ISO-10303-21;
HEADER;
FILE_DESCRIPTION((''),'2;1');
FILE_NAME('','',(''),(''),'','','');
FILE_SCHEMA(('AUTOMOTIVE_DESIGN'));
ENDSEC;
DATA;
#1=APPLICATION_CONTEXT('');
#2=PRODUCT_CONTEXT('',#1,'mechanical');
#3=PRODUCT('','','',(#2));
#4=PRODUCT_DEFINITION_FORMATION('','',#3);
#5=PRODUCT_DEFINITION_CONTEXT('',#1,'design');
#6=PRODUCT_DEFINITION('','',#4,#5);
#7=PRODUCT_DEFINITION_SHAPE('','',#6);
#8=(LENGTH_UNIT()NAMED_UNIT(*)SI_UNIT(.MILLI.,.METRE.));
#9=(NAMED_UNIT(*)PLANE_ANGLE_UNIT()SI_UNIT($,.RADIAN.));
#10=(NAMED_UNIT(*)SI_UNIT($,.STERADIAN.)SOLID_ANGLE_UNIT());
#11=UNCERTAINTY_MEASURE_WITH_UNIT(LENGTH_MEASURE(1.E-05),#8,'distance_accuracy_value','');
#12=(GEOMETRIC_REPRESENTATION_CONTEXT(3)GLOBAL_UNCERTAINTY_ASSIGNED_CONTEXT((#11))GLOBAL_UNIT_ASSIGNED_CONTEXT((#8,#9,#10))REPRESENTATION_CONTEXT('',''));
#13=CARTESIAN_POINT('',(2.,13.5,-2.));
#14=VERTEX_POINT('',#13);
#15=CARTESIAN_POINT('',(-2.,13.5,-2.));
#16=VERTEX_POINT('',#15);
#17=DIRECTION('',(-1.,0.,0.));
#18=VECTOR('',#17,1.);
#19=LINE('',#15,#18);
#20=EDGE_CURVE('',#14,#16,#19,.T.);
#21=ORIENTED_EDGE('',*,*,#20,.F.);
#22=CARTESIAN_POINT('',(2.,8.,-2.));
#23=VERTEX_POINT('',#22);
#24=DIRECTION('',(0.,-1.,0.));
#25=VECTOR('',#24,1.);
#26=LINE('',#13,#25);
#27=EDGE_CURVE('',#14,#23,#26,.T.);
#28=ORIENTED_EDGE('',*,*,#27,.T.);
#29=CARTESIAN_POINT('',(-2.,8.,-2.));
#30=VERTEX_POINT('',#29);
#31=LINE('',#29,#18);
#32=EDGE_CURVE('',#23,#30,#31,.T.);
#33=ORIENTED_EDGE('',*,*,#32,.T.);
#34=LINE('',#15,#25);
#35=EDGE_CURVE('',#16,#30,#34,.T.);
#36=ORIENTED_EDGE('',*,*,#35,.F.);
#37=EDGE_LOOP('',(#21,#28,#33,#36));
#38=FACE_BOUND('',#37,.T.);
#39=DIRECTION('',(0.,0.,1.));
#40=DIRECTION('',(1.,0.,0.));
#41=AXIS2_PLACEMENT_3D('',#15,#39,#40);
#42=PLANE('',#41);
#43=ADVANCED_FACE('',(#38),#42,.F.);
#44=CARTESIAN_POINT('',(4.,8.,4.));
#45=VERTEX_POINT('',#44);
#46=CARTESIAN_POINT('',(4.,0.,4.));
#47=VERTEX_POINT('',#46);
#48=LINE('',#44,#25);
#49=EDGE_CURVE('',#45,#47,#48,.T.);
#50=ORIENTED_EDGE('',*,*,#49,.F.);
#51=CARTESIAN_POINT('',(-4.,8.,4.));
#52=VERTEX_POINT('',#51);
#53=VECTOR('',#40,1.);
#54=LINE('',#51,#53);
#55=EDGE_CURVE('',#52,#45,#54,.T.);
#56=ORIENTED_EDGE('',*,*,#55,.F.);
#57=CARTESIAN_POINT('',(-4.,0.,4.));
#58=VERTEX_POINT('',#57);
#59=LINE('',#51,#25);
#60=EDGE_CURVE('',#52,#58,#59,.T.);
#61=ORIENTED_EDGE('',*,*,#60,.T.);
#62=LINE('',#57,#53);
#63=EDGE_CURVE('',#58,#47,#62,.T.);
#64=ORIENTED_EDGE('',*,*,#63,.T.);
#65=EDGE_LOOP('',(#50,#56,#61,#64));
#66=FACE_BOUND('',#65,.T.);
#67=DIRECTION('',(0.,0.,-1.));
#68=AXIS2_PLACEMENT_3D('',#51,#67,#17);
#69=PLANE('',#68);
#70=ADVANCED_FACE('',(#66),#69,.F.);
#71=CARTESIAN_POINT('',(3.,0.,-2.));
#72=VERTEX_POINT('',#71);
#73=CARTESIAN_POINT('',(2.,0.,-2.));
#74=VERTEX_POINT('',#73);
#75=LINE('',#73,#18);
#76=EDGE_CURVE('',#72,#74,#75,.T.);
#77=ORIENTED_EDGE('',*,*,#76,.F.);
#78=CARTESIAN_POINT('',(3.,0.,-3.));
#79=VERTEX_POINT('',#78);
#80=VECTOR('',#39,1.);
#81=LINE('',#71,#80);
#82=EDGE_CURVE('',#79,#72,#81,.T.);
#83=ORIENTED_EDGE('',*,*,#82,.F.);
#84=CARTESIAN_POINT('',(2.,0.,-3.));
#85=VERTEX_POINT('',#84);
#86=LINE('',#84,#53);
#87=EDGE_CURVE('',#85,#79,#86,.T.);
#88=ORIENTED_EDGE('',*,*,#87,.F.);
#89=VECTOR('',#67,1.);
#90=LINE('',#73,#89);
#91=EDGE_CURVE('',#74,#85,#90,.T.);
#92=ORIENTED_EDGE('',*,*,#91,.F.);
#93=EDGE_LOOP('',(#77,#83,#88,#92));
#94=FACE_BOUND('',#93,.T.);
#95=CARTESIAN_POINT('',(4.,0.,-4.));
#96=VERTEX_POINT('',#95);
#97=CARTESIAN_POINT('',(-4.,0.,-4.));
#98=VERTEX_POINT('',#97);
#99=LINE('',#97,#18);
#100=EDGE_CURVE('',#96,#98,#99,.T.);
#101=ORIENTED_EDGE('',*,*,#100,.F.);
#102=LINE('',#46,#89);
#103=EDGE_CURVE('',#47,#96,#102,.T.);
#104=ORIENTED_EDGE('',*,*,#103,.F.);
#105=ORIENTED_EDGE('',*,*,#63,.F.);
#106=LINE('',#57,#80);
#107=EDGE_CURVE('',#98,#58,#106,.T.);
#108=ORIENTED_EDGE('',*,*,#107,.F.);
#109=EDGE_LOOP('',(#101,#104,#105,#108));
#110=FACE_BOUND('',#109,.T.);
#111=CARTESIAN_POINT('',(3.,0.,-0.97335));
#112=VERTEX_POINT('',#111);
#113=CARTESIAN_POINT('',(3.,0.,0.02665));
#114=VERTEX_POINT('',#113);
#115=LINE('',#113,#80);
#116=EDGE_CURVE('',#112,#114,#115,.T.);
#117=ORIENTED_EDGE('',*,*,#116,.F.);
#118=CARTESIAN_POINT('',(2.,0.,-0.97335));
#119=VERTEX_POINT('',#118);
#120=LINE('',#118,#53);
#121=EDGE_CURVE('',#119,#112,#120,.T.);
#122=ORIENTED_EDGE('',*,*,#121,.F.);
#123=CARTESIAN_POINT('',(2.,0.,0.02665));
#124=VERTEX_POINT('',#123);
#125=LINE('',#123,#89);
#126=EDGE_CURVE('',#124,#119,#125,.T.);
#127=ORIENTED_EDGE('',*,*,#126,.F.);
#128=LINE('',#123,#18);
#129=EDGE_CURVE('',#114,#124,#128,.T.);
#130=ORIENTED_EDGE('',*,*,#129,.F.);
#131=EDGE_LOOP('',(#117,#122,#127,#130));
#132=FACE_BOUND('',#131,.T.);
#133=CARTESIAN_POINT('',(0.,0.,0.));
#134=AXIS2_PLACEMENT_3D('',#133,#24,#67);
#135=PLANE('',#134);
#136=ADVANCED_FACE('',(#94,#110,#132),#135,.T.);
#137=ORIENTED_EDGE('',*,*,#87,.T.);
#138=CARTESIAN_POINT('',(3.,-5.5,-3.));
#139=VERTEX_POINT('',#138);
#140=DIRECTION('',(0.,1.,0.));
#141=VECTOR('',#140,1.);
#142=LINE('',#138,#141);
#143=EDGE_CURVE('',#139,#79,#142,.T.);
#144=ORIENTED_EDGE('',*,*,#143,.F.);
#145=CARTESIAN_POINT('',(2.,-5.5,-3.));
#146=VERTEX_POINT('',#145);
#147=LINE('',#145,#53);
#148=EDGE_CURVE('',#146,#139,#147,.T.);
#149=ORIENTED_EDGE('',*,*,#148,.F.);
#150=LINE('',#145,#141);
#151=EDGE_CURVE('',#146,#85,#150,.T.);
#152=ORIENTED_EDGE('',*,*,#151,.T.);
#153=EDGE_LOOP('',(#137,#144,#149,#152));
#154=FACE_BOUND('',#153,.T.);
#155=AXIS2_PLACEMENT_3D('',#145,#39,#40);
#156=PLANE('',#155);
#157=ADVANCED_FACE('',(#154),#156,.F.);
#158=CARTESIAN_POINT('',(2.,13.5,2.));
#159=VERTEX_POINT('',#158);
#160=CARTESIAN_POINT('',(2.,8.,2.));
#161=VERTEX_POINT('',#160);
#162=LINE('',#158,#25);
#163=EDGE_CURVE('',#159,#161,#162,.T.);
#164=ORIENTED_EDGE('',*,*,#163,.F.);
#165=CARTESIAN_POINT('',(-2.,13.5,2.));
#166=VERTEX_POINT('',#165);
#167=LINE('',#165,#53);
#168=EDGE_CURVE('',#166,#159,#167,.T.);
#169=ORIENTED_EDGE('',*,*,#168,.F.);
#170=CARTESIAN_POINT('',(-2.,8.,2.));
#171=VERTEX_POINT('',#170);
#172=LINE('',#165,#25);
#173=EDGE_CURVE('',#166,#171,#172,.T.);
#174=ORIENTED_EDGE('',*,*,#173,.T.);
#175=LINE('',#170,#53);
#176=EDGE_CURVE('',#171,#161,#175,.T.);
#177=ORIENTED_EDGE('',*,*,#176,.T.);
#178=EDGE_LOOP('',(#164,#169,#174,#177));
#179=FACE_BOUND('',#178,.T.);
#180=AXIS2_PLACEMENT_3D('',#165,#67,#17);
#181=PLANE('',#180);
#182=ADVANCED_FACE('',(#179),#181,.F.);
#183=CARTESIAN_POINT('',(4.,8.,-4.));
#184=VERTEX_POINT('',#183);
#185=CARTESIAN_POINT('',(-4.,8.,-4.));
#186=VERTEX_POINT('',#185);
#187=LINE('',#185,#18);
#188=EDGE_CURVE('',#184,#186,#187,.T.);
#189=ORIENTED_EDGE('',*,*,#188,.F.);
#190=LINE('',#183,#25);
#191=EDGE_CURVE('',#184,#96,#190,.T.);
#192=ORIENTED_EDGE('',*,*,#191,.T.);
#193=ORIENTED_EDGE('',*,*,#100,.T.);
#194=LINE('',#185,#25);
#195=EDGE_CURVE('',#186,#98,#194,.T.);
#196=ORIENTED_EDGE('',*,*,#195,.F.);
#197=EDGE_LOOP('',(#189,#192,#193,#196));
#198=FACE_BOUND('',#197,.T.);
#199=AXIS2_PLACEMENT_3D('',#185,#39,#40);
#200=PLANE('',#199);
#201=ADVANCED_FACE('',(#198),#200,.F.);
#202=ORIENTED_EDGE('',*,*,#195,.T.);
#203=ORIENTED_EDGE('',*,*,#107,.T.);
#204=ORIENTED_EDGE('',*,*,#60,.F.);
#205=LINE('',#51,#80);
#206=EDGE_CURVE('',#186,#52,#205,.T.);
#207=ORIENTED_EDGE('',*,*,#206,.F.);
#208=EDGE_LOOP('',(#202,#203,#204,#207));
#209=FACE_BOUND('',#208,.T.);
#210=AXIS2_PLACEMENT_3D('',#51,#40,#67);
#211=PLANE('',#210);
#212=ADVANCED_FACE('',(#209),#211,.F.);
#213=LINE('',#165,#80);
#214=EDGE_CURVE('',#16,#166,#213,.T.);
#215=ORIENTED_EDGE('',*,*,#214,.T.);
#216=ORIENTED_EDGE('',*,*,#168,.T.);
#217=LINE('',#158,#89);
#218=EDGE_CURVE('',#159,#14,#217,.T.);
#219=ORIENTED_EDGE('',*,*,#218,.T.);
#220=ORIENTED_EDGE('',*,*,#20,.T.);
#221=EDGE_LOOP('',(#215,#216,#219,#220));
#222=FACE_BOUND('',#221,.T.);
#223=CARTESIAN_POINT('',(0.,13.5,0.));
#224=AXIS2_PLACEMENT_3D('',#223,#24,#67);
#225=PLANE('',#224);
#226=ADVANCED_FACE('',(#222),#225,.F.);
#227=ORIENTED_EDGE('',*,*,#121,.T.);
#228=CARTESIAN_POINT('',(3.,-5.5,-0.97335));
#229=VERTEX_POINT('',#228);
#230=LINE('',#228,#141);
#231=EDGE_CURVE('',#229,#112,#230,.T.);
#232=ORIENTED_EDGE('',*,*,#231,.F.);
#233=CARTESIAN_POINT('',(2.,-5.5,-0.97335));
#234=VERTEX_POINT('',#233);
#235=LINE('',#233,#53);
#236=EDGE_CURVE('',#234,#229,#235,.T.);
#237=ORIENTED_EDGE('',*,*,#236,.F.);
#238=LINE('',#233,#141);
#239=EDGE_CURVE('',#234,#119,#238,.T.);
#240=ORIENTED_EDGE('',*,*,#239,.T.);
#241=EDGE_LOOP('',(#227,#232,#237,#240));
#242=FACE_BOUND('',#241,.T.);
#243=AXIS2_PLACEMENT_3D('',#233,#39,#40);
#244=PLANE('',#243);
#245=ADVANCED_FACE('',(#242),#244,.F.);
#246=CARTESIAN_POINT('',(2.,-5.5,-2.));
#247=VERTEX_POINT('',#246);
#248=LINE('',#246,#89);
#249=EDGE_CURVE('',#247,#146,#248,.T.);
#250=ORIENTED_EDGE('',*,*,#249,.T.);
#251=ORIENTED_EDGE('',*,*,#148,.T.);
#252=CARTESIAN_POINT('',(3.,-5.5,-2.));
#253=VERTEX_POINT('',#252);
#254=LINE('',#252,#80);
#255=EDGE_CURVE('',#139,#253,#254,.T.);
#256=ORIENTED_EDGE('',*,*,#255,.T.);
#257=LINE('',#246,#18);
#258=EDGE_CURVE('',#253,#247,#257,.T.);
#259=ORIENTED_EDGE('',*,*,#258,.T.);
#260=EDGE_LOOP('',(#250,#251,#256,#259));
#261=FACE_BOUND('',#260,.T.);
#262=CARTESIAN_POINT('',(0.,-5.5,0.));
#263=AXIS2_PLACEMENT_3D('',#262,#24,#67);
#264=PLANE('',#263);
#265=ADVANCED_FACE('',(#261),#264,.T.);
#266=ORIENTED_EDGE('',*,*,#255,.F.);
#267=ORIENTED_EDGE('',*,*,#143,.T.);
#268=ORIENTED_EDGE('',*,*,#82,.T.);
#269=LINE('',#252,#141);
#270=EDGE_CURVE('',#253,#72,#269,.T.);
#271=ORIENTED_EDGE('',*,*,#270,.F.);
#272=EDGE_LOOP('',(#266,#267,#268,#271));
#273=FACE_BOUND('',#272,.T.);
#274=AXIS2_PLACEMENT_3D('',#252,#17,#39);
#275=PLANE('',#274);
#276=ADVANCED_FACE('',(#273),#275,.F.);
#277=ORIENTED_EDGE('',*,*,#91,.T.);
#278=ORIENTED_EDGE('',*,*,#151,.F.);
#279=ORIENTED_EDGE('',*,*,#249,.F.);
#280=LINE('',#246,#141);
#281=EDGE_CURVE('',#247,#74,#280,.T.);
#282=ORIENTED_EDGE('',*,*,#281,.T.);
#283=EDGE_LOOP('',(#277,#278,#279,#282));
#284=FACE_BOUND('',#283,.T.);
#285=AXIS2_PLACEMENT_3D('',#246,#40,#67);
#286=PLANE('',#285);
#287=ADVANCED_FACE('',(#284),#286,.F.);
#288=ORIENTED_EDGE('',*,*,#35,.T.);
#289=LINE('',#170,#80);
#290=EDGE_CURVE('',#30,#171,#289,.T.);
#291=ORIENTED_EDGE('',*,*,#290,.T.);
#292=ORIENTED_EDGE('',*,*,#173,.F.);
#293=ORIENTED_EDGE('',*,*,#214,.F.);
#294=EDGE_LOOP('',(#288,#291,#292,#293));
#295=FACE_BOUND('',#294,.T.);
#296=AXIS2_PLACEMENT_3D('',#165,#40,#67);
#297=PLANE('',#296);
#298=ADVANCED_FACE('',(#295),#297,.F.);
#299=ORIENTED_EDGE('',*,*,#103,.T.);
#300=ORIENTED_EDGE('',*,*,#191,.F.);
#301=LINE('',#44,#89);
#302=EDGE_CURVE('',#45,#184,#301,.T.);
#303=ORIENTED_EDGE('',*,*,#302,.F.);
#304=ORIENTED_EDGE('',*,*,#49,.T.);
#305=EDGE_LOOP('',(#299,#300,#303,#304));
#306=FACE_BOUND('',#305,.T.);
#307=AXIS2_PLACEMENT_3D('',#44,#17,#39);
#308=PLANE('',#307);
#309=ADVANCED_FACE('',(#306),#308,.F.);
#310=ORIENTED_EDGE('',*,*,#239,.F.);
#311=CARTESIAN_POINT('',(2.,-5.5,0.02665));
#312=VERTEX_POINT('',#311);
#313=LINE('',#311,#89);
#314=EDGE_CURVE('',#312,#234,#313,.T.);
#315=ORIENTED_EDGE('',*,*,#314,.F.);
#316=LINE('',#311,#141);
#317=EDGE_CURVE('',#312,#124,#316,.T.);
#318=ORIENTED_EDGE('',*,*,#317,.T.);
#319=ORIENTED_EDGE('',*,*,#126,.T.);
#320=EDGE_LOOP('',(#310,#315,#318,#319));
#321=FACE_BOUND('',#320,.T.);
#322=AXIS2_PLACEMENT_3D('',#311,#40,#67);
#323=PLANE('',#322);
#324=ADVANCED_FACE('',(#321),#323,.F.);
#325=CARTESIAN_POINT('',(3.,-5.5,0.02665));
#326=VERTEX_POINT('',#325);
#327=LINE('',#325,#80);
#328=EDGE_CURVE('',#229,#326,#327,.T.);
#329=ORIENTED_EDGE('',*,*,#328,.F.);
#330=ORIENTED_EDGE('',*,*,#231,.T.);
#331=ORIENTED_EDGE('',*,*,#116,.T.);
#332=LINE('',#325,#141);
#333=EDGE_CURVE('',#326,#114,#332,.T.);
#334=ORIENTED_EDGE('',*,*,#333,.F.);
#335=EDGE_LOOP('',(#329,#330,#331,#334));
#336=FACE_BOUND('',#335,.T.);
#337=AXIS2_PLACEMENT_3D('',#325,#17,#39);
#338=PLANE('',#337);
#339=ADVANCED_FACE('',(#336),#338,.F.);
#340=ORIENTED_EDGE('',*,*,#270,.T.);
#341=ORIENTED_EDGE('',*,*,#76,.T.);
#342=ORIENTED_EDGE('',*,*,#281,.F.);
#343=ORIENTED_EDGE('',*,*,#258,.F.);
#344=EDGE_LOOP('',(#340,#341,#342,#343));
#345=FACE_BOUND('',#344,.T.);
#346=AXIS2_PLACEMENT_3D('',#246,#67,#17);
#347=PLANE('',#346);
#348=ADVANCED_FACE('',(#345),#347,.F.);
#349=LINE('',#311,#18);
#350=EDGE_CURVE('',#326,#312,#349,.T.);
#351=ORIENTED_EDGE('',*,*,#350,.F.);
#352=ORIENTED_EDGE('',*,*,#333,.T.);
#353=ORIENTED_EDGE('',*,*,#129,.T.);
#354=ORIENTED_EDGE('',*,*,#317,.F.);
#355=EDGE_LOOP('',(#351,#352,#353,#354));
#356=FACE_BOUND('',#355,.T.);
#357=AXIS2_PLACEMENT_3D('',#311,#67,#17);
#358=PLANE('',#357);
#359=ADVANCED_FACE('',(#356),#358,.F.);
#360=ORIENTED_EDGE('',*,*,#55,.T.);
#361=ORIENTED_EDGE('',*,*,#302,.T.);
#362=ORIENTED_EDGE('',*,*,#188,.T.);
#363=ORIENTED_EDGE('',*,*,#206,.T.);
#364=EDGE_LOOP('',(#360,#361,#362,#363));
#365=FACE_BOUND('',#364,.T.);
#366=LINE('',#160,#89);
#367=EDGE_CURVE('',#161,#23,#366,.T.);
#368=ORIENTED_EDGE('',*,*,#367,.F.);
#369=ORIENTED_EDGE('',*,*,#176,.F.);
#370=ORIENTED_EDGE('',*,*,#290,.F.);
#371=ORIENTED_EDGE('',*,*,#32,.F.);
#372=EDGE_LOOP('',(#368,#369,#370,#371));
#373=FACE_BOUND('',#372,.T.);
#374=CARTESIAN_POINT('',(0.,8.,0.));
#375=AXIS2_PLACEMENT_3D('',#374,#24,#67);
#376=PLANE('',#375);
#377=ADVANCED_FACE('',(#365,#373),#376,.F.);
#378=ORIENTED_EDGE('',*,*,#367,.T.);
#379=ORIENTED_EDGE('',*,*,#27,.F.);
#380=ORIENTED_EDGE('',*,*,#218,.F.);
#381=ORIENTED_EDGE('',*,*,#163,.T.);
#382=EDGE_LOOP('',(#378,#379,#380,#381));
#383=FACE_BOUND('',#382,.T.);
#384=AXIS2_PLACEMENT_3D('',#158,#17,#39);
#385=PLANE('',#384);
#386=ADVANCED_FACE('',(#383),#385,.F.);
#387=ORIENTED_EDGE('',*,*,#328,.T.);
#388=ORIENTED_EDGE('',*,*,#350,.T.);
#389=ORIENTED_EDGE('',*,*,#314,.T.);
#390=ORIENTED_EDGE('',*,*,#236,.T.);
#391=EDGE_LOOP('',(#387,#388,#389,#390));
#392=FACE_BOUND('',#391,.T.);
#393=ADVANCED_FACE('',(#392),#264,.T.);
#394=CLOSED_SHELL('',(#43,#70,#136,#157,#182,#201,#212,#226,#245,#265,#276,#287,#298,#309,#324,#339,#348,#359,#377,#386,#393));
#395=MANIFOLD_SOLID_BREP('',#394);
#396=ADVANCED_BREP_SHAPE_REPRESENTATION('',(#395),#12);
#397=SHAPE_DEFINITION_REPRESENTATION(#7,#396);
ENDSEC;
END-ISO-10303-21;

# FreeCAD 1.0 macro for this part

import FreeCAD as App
import Part
import Sketcher

V = App.Vector
Q = App.Units.Quantity

doc = App.newDocument("Part")
body = doc.addObject("PartDesign::Body", "Body")

# Sketch on XZ plane
sketch1 = body.newObject("Sketcher::SketchObject", "Sketch")
sketch1.AttachmentSupport = (doc.getObject("XZ_Plane"), [""])
sketch1.MapMode = "FlatFace"
sketch1.addGeometry([
    Part.LineSegment(V(-4, -4, 0), V(-4, 4, 0)),
    Part.LineSegment(V(-4, 4, 0), V(4, 4, 0)),
    Part.LineSegment(V(4, 4, 0), V(4, -4, 0)),
    Part.LineSegment(V(4, -4, 0), V(-4, -4, 0)),
], False)
sketch1.addConstraint([
    Sketcher.Constraint("Coincident", 0, 2, 1, 1),
    Sketcher.Constraint("Coincident", 1, 2, 2, 1),
    Sketcher.Constraint("Coincident", 2, 2, 3, 1),
    Sketcher.Constraint("Coincident", 3, 2, 0, 1),
    Sketcher.Constraint("Vertical", 0),
    Sketcher.Constraint("Horizontal", 1),
    Sketcher.Constraint("Vertical", 2),
    Sketcher.Constraint("Horizontal", 3),
    Sketcher.Constraint("Symmetric", 0, 2, 2, 2, -1, 1),
    Sketcher.Constraint("Equal", 3, 0),
    Sketcher.Constraint("DistanceX", 1, 1, 1, 2, Q("8 mm")),
])
pad1 = body.newObject("PartDesign::Pad", "Pad")
pad1.Profile = sketch1
pad1.Length = 8
pad1.Reversed = True

# Sketch on XZ plane
sketch2 = body.newObject("Sketcher::SketchObject", "Sketch001")
sketch2.AttachmentSupport = (doc.getObject("XZ_Plane"), [""])
sketch2.MapMode = "FlatFace"
sketch2.AttachmentOffset = App.Placement(V(0, 0, -8), App.Rotation())
sketch2.addGeometry([
    Part.LineSegment(V(-2, -2, 0), V(-2, 2, 0)),
    Part.LineSegment(V(-2, 2, 0), V(2, 2, 0)),
    Part.LineSegment(V(2, 2, 0), V(2, -2, 0)),
    Part.LineSegment(V(2, -2, 0), V(-2, -2, 0)),
], False)
sketch2.addConstraint([
    Sketcher.Constraint("Coincident", 0, 2, 1, 1),
    Sketcher.Constraint("Coincident", 1, 2, 2, 1),
    Sketcher.Constraint("Coincident", 2, 2, 3, 1),
    Sketcher.Constraint("Coincident", 3, 2, 0, 1),
    Sketcher.Constraint("Vertical", 0),
    Sketcher.Constraint("Horizontal", 1),
    Sketcher.Constraint("Vertical", 2),
    Sketcher.Constraint("Horizontal", 3),
    Sketcher.Constraint("Symmetric", 0, 2, 2, 2, -1, 1),
    Sketcher.Constraint("Equal", 3, 0),
    Sketcher.Constraint("DistanceX", 1, 1, 1, 2, Q("4 mm")),
])
pad2 = body.newObject("PartDesign::Pad", "Pad001")
pad2.Profile = sketch2
pad2.Length = 5.5
pad2.Reversed = True

# Sketch on XZ plane
sketch3 = body.newObject("Sketcher::SketchObject", "Sketch002")
sketch3.AttachmentSupport = (doc.getObject("XZ_Plane"), [""])
sketch3.MapMode = "FlatFace"
sketch3.addGeometry([
    Part.LineSegment(V(2, -2, 0), V(2, -3, 0)),  # 0
    Part.LineSegment(V(2, -3, 0), V(3, -3, 0)),  # 1
    Part.LineSegment(V(3, -3, 0), V(3, -2, 0)),  # 2
    Part.LineSegment(V(3, -2, 0), V(2, -2, 0)),  # 3
    Part.LineSegment(V(2, 0, 0), V(2, -1, 0)),  # 4
    Part.LineSegment(V(2, -1, 0), V(3, -1, 0)),  # 5
    Part.LineSegment(V(3, -1, 0), V(3, 0, 0)),  # 6
    Part.LineSegment(V(3, 0, 0), V(2, 0, 0)),  # 7
], False)
sketch3.addConstraint([
    Sketcher.Constraint("Coincident", 0, 2, 1, 1),
    Sketcher.Constraint("Coincident", 1, 2, 2, 1),
    Sketcher.Constraint("Coincident", 2, 2, 3, 1),
    Sketcher.Constraint("Coincident", 3, 2, 0, 1),
    Sketcher.Constraint("Coincident", 4, 2, 5, 1),
    Sketcher.Constraint("Coincident", 5, 2, 6, 1),
    Sketcher.Constraint("Coincident", 6, 2, 7, 1),
    Sketcher.Constraint("Coincident", 7, 2, 4, 1),
    Sketcher.Constraint("Vertical", 0),
    Sketcher.Constraint("Horizontal", 1),
    Sketcher.Constraint("Vertical", 2),
    Sketcher.Constraint("Horizontal", 3),
    Sketcher.Constraint("Vertical", 4),
    Sketcher.Constraint("Horizontal", 5),
    Sketcher.Constraint("Vertical", 6),
    Sketcher.Constraint("Horizontal", 7),
    Sketcher.Constraint("Vertical", 3, 2, 4, 2),
    Sketcher.Constraint("Vertical", 2, 2, 5, 2),
    Sketcher.Constraint("Equal", 7, 0),
    Sketcher.Constraint("Equal", 2, 4),
    Sketcher.Constraint("DistanceX", 1, 1, 1, 2, Q("1 mm")),
    Sketcher.Constraint("DistanceX", -1, 1, 0, 2, Q("2 mm")),
    Sketcher.Constraint("DistanceY", 0, 2, -1, 1, Q("3 mm")),
    Sketcher.Constraint("DistanceY", 4, 2, -1, 1, Q("0.97335 mm")),
])
pad3 = body.newObject("PartDesign::Pad", "Pad002")
pad3.Profile = sketch3
pad3.Length = 5.5

doc.recompute()
